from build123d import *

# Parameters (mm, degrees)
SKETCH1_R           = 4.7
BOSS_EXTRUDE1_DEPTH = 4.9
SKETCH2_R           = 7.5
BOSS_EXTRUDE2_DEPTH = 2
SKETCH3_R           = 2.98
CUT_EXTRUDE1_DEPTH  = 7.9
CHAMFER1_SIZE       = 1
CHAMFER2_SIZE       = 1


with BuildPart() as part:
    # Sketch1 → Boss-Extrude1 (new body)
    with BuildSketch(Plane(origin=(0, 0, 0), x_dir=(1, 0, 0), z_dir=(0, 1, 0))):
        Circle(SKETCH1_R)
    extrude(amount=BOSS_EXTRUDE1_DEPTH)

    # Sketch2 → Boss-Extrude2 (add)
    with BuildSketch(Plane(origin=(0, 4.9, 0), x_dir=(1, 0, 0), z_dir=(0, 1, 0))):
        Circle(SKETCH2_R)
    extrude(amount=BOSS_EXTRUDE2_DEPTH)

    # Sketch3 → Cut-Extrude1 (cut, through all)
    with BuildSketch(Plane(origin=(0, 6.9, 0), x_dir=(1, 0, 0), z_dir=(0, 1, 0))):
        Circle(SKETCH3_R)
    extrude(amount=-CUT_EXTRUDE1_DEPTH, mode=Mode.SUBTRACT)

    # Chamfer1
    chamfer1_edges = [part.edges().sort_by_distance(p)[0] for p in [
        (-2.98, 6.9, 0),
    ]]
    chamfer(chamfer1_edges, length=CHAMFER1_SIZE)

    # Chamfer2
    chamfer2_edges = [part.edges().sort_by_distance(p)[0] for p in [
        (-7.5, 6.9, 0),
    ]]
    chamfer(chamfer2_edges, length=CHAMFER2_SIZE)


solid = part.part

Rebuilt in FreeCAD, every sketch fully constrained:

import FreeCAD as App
import Part
import Sketcher

V = App.Vector
Q = App.Units.Quantity


def edges_at(feature, points):
    """Names of the edges that pass closest to the given points."""
    edges = feature.Shape.Edges
    near = lambda p: min(range(len(edges)), key=lambda i: edges[i].distToShape(Part.Vertex(*p))[0])
    return sorted({f"Edge{near(p) + 1}" for p in points})

doc = App.newDocument("Part")
params = doc.addObject("Spreadsheet::Sheet", "Params")
for row, (alias, value) in enumerate([
    ("sketch1_diameter", "9.4 mm"),
    ("pad1_length", "4.9 mm"),
    ("sketch2_diameter", "15 mm"),
    ("pad2_length", "2 mm"),
    ("sketch3_diameter", "5.96 mm"),
    ("chamfer_size", "1 mm"),
    ("chamfer2_size", "1 mm"),
], start=1):
    params.set(f"A{row}", alias)
    params.set(f"B{row}", "=" + value)
    params.setAlias(f"B{row}", alias)

body = doc.addObject("PartDesign::Body", "Body")

sketch1 = body.newObject("Sketcher::SketchObject", "Sketch")
sketch1.AttachmentSupport = (doc.getObject("XZ_Plane"), [""])
sketch1.MapMode = "FlatFace"
sketch1.addGeometry(Part.Circle(V(0, 0, 0), V(0, 0, 1), 4.7), False)
sketch1.addConstraint(Sketcher.Constraint("Coincident", 0, 3, -1, 1))
sketch1.addConstraint(Sketcher.Constraint("Diameter", 0, Q("9.4 mm")))
sketch1.setExpression("Constraints[1]", "Params.sketch1_diameter")
pad1 = body.newObject("PartDesign::Pad", "Pad")
pad1.Profile = sketch1
pad1.setExpression("Length", "Params.pad1_length")
pad1.Reversed = True

sketch2 = body.newObject("Sketcher::SketchObject", "Sketch001")
sketch2.AttachmentSupport = (doc.getObject("XZ_Plane"), [""])
sketch2.MapMode = "FlatFace"
sketch2.AttachmentOffset = App.Placement(V(0, 0, -4.9), App.Rotation())
sketch2.addGeometry(Part.Circle(V(0, 0, 0), V(0, 0, 1), 8), False)
sketch2.addConstraint(Sketcher.Constraint("Coincident", 0, 3, -1, 1))
sketch2.addConstraint(Sketcher.Constraint("Diameter", 0, Q("15 mm")))
sketch2.setExpression("Constraints[1]", "Params.sketch2_diameter")
pad2 = body.newObject("PartDesign::Pad", "Pad001")
pad2.Profile = sketch2
pad2.setExpression("Length", "Params.pad2_length")
pad2.Reversed = True

sketch3 = body.newObject("Sketcher::SketchObject", "Sketch002")
sketch3.AttachmentSupport = (doc.getObject("XZ_Plane"), [""])
sketch3.MapMode = "FlatFace"
sketch3.AttachmentOffset = App.Placement(V(0, 0, -6.9), App.Rotation())
sketch3.addGeometry(Part.Circle(V(0, 0, 0), V(0, 0, 1), 3), False)
sketch3.addConstraint(Sketcher.Constraint("Coincident", 0, 3, -1, 1))
sketch3.addConstraint(Sketcher.Constraint("Diameter", 0, Q("5.96 mm")))
sketch3.setExpression("Constraints[1]", "Params.sketch3_diameter")
pocket1 = body.newObject("PartDesign::Pocket", "Pocket")
pocket1.Profile = sketch3
pocket1.Type = "ThroughAll"
pocket1.Reversed = True
doc.recompute()

chamfer = body.newObject("PartDesign::Chamfer", "Chamfer")
chamfer.Base = (pocket1, edges_at(pocket1, [(-2.98, 6.9, 0)]))
chamfer.setExpression("Size", "Params.chamfer_size")
doc.recompute()

chamfer2 = body.newObject("PartDesign::Chamfer", "Chamfer001")
chamfer2.Base = (chamfer, edges_at(chamfer, [(-7.5, 6.9, 0)]))
chamfer2.setExpression("Size", "Params.chamfer2_size")

doc.recompute()
